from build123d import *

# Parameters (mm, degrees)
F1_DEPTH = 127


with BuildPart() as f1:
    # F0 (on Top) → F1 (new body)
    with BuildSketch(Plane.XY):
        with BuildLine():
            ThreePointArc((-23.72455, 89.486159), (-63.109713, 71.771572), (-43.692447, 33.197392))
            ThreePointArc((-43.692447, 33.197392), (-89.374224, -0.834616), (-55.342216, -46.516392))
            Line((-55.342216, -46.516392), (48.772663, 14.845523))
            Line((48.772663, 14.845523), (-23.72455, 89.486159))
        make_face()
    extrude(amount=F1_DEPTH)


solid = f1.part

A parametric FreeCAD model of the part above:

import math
import FreeCAD as App
import Part
import Sketcher
Q = App.Units.Quantity

doc = App.newDocument("Part")
body = doc.addObject("PartDesign::Body", "Body")

# Sketch on XY plane
sketch1 = doc.addObject("Sketcher::SketchObject", "Sketch")
body.addObject(sketch1)
sketch1.AttachmentSupport = (doc.XY_Plane, [""])
sketch1.MapMode = "FlatFace"
sketch1.addGeometry(Part.ArcOfCircle(Part.Circle(App.Vector(-35, 62, 0), App.Vector(0, 0, 1), 30), math.radians(68), math.radians(253)), False)
sketch1.addGeometry(Part.ArcOfCircle(Part.Circle(App.Vector(-50, -7, 0), App.Vector(0, 0, 1), 40), math.radians(82), math.radians(262)), False)
sketch1.addGeometry(Part.LineSegment(App.Vector(-55, -47, 0), App.Vector(49, 15, 0)), False)
sketch1.addGeometry(Part.LineSegment(App.Vector(49, 15, 0), App.Vector(-24, 89, 0)), False)
sketch1.addConstraint(Sketcher.Constraint("Coincident", 0, 2, 1, 1))
sketch1.addConstraint(Sketcher.Constraint("Coincident", 1, 2, 2, 1))
sketch1.addConstraint(Sketcher.Constraint("Coincident", 2, 2, 3, 1))
sketch1.addConstraint(Sketcher.Constraint("Coincident", 3, 2, 0, 1))
sketch1.addConstraint(Sketcher.Constraint("Radius", 0, 29.891282))
sketch1.addConstraint(Sketcher.Constraint("Radius", 1, 40.280282))
sketch1.addConstraint(Sketcher.Constraint("DistanceY", 1, 3, -1, 1, 6.6595))
sketch1.addConstraint(Sketcher.Constraint("Distance", 3, 104.05321))
sketch1.addConstraint(Sketcher.Constraint("DistanceX", 1, 3, -1, 1, 49.517332))
sketch1.addConstraint(Sketcher.Constraint("DistanceY", -1, 1, 0, 2, 33.197392))
sketch1.addConstraint(Sketcher.Constraint("DistanceX", 3, 2, -1, 1, 23.72455))
sketch1.addConstraint(Sketcher.Constraint("DistanceY", -1, 1, 3, 2, 89.486159))
sketch1.addConstraint(Sketcher.Constraint("DistanceX", 1, 2, 0, 2, 11.649769))
sketch1.addConstraint(Sketcher.Constraint("DistanceX", 0, 2, 2, 2, 92.46511))
pad1 = doc.addObject("PartDesign::Pad", "Pad")
body.addObject(pad1)
pad1.Profile = sketch1
pad1.Length = Q("5 in")

doc.recompute()
